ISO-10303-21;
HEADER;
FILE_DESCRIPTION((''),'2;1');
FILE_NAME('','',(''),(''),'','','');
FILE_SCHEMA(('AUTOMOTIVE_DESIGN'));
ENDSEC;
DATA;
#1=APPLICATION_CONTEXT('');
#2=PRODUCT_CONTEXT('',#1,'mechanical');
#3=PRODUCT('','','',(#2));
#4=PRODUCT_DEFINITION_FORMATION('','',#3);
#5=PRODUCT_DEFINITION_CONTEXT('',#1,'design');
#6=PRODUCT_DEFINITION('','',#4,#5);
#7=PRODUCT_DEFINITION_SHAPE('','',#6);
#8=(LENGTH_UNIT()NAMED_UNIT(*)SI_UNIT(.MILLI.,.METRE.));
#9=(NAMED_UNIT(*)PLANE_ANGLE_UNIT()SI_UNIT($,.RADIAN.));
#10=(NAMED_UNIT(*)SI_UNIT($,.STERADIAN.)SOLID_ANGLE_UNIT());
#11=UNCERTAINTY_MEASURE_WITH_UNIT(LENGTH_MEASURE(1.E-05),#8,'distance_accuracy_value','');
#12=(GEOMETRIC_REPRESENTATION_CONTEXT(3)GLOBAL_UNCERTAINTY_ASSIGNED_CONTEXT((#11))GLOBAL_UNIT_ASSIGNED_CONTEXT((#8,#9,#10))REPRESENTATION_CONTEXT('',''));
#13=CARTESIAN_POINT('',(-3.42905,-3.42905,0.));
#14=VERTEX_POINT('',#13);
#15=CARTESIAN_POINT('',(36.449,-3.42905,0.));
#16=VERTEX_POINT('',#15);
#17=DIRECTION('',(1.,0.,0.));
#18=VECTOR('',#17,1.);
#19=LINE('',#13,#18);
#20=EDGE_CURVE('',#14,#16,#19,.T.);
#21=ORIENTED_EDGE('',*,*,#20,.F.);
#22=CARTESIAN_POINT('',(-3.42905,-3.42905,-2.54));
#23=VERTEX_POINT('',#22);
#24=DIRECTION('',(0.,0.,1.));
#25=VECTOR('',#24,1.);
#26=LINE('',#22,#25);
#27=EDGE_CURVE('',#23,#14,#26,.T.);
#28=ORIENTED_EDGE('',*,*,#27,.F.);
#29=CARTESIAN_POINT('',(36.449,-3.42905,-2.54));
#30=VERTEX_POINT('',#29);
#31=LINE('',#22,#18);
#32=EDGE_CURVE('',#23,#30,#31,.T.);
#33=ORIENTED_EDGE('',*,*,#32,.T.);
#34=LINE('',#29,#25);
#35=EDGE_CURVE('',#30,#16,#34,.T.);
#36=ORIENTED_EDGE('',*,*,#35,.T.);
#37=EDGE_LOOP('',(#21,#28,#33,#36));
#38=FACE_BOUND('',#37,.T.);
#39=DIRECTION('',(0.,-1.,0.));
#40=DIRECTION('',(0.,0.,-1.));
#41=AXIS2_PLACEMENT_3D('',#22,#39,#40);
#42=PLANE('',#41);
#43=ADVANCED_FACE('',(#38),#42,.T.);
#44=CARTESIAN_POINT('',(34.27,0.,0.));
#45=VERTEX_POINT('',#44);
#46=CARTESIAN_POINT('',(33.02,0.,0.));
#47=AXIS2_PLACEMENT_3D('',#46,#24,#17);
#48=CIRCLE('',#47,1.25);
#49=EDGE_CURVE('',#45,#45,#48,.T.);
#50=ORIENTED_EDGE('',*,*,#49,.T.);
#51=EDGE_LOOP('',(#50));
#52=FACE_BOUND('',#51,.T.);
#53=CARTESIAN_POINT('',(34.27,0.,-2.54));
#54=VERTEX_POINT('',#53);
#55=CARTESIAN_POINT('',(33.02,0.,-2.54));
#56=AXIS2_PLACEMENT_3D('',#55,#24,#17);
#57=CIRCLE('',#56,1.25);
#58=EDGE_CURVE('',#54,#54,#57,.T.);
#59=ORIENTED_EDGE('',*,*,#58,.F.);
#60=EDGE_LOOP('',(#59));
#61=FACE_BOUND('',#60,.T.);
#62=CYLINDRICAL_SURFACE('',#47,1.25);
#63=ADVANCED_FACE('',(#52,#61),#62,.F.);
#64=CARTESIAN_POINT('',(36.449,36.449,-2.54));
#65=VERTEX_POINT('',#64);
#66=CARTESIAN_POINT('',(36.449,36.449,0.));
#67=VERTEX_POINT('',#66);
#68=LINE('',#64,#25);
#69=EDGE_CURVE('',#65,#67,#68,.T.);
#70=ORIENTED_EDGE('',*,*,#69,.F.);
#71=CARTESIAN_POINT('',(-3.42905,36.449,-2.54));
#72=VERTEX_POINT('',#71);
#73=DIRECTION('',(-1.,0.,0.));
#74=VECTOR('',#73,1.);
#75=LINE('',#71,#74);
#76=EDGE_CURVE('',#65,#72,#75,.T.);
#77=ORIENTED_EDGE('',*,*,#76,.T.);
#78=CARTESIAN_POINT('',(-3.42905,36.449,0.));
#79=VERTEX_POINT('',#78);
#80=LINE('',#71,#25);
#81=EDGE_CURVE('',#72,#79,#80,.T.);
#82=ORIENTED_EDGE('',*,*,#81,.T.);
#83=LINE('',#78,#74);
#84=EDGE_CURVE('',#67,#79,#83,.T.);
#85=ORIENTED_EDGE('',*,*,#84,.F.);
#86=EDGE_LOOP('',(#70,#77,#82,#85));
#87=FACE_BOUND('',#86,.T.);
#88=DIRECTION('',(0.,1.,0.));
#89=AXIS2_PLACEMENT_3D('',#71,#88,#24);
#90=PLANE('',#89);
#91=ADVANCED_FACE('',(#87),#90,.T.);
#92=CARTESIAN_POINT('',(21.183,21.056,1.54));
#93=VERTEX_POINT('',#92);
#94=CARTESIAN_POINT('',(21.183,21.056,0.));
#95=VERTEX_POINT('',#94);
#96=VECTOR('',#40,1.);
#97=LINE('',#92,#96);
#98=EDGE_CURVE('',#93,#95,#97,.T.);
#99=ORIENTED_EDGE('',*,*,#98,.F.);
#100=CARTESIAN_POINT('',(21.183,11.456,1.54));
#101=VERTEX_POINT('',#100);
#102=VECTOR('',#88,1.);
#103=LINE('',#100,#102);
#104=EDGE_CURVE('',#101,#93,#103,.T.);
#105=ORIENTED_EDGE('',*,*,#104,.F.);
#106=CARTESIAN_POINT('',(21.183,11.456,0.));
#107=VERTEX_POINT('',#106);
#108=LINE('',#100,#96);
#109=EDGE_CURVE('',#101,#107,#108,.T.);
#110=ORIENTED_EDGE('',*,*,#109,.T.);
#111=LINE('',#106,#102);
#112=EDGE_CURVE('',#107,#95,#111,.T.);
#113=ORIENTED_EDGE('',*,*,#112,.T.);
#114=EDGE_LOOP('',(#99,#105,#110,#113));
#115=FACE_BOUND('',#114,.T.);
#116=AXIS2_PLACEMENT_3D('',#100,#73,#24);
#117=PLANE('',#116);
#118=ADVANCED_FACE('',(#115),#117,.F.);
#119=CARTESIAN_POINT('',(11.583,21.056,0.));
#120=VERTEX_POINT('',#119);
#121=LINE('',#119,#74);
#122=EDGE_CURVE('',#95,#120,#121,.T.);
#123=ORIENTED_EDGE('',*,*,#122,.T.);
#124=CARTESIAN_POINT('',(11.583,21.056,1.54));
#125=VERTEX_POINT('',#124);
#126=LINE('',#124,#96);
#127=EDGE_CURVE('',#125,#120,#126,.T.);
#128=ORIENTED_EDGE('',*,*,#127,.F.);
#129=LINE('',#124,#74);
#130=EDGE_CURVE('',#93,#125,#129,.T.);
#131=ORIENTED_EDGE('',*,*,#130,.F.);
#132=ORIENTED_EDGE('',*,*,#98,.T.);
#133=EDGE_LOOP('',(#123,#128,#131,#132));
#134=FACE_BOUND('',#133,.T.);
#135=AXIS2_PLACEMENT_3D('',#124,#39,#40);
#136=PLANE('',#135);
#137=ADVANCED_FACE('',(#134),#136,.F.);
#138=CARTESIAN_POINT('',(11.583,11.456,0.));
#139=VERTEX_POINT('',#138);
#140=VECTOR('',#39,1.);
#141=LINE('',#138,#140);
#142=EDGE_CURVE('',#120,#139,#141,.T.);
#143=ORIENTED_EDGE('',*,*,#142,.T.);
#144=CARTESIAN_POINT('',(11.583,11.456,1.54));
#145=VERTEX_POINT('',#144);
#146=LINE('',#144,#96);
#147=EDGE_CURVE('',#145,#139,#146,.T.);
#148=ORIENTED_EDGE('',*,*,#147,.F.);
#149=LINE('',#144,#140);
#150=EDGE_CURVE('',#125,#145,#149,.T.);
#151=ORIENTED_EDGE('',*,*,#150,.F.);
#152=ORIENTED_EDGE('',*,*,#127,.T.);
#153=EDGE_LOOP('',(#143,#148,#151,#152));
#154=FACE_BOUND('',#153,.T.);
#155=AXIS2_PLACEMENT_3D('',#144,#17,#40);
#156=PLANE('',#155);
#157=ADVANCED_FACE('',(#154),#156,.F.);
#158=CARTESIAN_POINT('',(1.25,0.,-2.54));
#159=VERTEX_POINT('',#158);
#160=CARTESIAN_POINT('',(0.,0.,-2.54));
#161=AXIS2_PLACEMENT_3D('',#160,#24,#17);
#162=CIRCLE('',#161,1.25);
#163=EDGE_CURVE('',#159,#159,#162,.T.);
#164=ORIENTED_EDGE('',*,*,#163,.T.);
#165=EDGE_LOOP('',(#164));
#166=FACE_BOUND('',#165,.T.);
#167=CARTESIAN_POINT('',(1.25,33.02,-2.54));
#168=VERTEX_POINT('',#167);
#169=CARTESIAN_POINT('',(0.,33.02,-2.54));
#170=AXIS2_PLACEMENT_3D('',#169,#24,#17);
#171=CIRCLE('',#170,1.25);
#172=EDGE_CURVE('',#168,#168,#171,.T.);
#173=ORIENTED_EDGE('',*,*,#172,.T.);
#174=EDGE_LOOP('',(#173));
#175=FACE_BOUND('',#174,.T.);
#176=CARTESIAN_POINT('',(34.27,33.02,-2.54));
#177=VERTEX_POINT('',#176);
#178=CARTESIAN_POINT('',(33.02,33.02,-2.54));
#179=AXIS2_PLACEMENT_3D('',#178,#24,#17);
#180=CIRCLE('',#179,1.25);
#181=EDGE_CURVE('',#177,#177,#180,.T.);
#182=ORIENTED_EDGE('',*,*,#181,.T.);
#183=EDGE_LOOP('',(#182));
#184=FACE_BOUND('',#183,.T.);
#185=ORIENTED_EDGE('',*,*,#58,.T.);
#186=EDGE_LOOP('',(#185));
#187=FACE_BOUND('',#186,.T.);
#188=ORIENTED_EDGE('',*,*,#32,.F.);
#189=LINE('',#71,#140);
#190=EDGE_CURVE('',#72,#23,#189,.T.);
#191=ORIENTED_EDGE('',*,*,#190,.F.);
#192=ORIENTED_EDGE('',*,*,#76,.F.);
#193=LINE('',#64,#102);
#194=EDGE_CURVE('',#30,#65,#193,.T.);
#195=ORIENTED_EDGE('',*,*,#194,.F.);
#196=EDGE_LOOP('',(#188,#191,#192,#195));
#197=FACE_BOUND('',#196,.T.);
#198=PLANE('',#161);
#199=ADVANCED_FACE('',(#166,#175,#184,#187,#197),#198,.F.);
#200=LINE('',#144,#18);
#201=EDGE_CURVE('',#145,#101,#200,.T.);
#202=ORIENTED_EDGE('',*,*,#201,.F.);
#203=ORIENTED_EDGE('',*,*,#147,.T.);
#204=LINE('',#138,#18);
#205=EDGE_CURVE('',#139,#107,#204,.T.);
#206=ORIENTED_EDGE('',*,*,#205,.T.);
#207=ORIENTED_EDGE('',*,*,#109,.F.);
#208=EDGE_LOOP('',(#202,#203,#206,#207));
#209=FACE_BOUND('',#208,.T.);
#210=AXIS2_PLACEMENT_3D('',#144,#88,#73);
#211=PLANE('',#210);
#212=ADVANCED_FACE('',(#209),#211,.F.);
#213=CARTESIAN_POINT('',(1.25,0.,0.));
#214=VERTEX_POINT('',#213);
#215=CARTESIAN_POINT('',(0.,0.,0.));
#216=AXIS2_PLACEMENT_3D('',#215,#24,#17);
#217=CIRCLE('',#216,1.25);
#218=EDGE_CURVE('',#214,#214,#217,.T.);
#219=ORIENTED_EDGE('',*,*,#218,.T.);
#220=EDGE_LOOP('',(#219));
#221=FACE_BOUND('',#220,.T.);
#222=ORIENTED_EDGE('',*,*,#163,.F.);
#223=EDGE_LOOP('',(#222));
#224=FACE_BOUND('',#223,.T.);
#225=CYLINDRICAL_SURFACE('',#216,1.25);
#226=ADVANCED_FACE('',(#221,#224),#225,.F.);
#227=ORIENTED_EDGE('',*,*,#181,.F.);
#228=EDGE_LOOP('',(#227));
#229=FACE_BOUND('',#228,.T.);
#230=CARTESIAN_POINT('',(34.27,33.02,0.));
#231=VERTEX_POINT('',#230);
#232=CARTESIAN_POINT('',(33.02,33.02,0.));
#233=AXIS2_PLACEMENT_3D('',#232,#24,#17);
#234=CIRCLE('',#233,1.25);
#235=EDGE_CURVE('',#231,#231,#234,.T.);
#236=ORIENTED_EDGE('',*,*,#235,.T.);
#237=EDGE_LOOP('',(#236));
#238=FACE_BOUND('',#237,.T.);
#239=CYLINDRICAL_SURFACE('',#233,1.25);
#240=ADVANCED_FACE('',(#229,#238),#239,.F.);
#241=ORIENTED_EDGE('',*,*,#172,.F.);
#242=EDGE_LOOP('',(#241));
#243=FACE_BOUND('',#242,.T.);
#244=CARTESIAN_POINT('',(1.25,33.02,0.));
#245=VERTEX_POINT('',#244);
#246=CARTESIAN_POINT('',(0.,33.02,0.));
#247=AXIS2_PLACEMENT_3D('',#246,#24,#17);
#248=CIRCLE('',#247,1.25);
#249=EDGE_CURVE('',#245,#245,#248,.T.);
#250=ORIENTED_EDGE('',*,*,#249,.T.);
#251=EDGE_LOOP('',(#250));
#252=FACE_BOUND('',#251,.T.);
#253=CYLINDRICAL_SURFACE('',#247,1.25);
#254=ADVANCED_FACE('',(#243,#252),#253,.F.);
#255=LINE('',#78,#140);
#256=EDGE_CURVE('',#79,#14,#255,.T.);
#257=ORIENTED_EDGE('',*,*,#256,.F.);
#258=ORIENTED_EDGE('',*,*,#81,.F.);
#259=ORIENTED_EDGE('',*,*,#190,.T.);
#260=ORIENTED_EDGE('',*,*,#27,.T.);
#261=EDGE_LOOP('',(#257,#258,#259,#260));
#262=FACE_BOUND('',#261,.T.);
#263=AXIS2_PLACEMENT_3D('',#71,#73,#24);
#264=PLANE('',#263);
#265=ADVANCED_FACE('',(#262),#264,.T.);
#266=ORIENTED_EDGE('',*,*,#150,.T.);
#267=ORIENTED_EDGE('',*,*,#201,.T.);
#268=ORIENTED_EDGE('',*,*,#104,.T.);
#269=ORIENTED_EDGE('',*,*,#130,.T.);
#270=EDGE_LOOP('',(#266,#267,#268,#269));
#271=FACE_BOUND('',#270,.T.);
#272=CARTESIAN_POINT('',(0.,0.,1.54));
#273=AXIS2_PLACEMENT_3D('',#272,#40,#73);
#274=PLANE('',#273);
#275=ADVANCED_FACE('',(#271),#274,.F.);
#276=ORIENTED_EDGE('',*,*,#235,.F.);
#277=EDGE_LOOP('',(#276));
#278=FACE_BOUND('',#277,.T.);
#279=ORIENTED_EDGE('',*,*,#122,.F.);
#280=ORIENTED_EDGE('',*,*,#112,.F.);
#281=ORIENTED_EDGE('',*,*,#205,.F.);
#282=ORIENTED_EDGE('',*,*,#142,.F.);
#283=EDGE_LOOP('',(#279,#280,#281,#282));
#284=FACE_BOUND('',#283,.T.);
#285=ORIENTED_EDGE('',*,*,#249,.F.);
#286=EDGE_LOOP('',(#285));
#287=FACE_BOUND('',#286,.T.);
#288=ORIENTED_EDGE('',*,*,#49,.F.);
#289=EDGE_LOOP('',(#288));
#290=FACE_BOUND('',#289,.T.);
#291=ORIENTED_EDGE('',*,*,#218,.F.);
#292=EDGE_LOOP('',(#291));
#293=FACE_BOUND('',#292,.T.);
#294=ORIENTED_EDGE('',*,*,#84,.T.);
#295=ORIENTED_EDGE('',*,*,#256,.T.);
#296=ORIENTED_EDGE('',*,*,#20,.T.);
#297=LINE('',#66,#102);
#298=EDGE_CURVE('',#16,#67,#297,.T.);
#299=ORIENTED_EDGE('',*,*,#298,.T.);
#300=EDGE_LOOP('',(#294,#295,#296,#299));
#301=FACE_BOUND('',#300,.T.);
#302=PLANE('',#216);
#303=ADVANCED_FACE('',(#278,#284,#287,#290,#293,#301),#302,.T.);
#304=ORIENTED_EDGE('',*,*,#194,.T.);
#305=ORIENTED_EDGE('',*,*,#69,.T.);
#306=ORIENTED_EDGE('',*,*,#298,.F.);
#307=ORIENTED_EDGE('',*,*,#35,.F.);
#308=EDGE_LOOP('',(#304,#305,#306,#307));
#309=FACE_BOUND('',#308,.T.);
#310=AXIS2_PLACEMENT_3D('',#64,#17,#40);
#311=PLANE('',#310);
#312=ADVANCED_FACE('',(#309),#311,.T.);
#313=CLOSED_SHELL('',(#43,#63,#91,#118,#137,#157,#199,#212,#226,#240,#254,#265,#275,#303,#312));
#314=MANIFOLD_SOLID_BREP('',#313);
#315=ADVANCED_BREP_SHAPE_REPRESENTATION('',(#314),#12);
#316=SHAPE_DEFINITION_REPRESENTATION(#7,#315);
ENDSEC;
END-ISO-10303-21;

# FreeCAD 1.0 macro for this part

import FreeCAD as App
import Part
import Sketcher
from FreeCAD import Vector


def add_polygon(sketch, points):
    """Adds a closed chain of lines whose ends are joined by coincident constraints."""
    first, n = sketch.GeometryCount, len(points)
    for a, b in zip(points, points[1:] + points[:1]):
        sketch.addGeometry(Part.LineSegment(App.Vector(*a, 0), App.Vector(*b, 0)), False)
    for i in range(n):
        sketch.addConstraint(Sketcher.Constraint("Coincident", first + i, 2, first + (i + 1) % n, 1))

doc = App.newDocument("Part")
body = doc.addObject("PartDesign::Body", "Body")

# Sketch on XY plane
sketch1 = doc.addObject("Sketcher::SketchObject", "Sketch")
body.addObject(sketch1)
sketch1.AttachmentSupport = (doc.XY_Plane, [""])
sketch1.MapMode = "FlatFace"
add_polygon(sketch1, [(-3, 36), (-3, -3), (36, -3), (36, 36)])  # lines 0-3
sketch1.addConstraint([
    Sketcher.Constraint("Vertical", 0),
    Sketcher.Constraint("Horizontal", 1),
    Sketcher.Constraint("Vertical", 2),
    Sketcher.Constraint("Horizontal", 3),
    Sketcher.Constraint("Equal", 3, 0),
    Sketcher.Constraint("DistanceX", -1, 1, 1, 2, 36.449),
    Sketcher.Constraint("DistanceY", -1, 1, 2, 2, 36.449),
    Sketcher.Constraint("DistanceX", 1, 1, 1, 2, 39.87805),
])
pad1 = doc.addObject("PartDesign::Pad", "Pad")
body.addObject(pad1)
pad1.Profile = sketch1
pad1.Length = 2.54
pad1.Reversed = True

# Sketch on XY plane
sketch2 = doc.addObject("Sketcher::SketchObject", "Sketch001")
body.addObject(sketch2)
sketch2.AttachmentSupport = (doc.XY_Plane, [""])
sketch2.MapMode = "FlatFace"
sketch2.addGeometry([
    Part.Circle(Vector(0, 33, 0), Vector(0, 0, 1), 1.2),
    Part.Circle(Vector(33, 33, 0), Vector(0, 0, 1), 1.2),
    Part.Circle(Vector(33, 0, 0), Vector(0, 0, 1), 1.2),
    Part.Circle(Vector(0, 0, 0), Vector(0, 0, 1), 1.2),
], False)
sketch2.addConstraint([
    Sketcher.Constraint("Coincident", 3, 3, -1, 1),
    Sketcher.Constraint("Equal", 0, 1),
    Sketcher.Constraint("Equal", 1, 2),
    Sketcher.Constraint("Equal", 2, 3),
    Sketcher.Constraint("PointOnObject", 0, 3, -2),
    Sketcher.Constraint("PointOnObject", 2, 3, -1),
    Sketcher.Constraint("Horizontal", 0, 3, 1, 3),
    Sketcher.Constraint("Vertical", 1, 3, 2, 3),
    Sketcher.Constraint("Diameter", 0, 2.5),
    Sketcher.Constraint("DistanceY", -1, 1, 0, 3, 33.02),
    Sketcher.Constraint("DistanceX", -1, 1, 1, 3, 33.02),
])
doc.recompute()
hole = doc.addObject("PartDesign::Hole", "Hole")
body.addObject(hole)
hole.Profile = sketch2
hole.ThreadType = "None"
hole.Diameter = 2.5
hole.DepthType = "ThroughAll"

# Sketch on XY plane
sketch3 = doc.addObject("Sketcher::SketchObject", "Sketch002")
body.addObject(sketch3)
sketch3.AttachmentSupport = (doc.XY_Plane, [""])
sketch3.MapMode = "FlatFace"
add_polygon(sketch3, [(12, 21), (12, 11), (21, 11), (21, 21)])  # lines 0-3
sketch3.addConstraint([
    Sketcher.Constraint("Vertical", 0),
    Sketcher.Constraint("Horizontal", 1),
    Sketcher.Constraint("Vertical", 2),
    Sketcher.Constraint("Horizontal", 3),
    Sketcher.Constraint("Equal", 3, 0),
    Sketcher.Constraint("DistanceX", 1, 1, 1, 2, 9.6),
    Sketcher.Constraint("DistanceX", -1, 1, 0, 2, 11.583),
    Sketcher.Constraint("DistanceY", -1, 1, 0, 2, 11.456),
])
pad2 = doc.addObject("PartDesign::Pad", "Pad001")
body.addObject(pad2)
pad2.Profile = sketch3
pad2.Length = 1.54

doc.recompute()
